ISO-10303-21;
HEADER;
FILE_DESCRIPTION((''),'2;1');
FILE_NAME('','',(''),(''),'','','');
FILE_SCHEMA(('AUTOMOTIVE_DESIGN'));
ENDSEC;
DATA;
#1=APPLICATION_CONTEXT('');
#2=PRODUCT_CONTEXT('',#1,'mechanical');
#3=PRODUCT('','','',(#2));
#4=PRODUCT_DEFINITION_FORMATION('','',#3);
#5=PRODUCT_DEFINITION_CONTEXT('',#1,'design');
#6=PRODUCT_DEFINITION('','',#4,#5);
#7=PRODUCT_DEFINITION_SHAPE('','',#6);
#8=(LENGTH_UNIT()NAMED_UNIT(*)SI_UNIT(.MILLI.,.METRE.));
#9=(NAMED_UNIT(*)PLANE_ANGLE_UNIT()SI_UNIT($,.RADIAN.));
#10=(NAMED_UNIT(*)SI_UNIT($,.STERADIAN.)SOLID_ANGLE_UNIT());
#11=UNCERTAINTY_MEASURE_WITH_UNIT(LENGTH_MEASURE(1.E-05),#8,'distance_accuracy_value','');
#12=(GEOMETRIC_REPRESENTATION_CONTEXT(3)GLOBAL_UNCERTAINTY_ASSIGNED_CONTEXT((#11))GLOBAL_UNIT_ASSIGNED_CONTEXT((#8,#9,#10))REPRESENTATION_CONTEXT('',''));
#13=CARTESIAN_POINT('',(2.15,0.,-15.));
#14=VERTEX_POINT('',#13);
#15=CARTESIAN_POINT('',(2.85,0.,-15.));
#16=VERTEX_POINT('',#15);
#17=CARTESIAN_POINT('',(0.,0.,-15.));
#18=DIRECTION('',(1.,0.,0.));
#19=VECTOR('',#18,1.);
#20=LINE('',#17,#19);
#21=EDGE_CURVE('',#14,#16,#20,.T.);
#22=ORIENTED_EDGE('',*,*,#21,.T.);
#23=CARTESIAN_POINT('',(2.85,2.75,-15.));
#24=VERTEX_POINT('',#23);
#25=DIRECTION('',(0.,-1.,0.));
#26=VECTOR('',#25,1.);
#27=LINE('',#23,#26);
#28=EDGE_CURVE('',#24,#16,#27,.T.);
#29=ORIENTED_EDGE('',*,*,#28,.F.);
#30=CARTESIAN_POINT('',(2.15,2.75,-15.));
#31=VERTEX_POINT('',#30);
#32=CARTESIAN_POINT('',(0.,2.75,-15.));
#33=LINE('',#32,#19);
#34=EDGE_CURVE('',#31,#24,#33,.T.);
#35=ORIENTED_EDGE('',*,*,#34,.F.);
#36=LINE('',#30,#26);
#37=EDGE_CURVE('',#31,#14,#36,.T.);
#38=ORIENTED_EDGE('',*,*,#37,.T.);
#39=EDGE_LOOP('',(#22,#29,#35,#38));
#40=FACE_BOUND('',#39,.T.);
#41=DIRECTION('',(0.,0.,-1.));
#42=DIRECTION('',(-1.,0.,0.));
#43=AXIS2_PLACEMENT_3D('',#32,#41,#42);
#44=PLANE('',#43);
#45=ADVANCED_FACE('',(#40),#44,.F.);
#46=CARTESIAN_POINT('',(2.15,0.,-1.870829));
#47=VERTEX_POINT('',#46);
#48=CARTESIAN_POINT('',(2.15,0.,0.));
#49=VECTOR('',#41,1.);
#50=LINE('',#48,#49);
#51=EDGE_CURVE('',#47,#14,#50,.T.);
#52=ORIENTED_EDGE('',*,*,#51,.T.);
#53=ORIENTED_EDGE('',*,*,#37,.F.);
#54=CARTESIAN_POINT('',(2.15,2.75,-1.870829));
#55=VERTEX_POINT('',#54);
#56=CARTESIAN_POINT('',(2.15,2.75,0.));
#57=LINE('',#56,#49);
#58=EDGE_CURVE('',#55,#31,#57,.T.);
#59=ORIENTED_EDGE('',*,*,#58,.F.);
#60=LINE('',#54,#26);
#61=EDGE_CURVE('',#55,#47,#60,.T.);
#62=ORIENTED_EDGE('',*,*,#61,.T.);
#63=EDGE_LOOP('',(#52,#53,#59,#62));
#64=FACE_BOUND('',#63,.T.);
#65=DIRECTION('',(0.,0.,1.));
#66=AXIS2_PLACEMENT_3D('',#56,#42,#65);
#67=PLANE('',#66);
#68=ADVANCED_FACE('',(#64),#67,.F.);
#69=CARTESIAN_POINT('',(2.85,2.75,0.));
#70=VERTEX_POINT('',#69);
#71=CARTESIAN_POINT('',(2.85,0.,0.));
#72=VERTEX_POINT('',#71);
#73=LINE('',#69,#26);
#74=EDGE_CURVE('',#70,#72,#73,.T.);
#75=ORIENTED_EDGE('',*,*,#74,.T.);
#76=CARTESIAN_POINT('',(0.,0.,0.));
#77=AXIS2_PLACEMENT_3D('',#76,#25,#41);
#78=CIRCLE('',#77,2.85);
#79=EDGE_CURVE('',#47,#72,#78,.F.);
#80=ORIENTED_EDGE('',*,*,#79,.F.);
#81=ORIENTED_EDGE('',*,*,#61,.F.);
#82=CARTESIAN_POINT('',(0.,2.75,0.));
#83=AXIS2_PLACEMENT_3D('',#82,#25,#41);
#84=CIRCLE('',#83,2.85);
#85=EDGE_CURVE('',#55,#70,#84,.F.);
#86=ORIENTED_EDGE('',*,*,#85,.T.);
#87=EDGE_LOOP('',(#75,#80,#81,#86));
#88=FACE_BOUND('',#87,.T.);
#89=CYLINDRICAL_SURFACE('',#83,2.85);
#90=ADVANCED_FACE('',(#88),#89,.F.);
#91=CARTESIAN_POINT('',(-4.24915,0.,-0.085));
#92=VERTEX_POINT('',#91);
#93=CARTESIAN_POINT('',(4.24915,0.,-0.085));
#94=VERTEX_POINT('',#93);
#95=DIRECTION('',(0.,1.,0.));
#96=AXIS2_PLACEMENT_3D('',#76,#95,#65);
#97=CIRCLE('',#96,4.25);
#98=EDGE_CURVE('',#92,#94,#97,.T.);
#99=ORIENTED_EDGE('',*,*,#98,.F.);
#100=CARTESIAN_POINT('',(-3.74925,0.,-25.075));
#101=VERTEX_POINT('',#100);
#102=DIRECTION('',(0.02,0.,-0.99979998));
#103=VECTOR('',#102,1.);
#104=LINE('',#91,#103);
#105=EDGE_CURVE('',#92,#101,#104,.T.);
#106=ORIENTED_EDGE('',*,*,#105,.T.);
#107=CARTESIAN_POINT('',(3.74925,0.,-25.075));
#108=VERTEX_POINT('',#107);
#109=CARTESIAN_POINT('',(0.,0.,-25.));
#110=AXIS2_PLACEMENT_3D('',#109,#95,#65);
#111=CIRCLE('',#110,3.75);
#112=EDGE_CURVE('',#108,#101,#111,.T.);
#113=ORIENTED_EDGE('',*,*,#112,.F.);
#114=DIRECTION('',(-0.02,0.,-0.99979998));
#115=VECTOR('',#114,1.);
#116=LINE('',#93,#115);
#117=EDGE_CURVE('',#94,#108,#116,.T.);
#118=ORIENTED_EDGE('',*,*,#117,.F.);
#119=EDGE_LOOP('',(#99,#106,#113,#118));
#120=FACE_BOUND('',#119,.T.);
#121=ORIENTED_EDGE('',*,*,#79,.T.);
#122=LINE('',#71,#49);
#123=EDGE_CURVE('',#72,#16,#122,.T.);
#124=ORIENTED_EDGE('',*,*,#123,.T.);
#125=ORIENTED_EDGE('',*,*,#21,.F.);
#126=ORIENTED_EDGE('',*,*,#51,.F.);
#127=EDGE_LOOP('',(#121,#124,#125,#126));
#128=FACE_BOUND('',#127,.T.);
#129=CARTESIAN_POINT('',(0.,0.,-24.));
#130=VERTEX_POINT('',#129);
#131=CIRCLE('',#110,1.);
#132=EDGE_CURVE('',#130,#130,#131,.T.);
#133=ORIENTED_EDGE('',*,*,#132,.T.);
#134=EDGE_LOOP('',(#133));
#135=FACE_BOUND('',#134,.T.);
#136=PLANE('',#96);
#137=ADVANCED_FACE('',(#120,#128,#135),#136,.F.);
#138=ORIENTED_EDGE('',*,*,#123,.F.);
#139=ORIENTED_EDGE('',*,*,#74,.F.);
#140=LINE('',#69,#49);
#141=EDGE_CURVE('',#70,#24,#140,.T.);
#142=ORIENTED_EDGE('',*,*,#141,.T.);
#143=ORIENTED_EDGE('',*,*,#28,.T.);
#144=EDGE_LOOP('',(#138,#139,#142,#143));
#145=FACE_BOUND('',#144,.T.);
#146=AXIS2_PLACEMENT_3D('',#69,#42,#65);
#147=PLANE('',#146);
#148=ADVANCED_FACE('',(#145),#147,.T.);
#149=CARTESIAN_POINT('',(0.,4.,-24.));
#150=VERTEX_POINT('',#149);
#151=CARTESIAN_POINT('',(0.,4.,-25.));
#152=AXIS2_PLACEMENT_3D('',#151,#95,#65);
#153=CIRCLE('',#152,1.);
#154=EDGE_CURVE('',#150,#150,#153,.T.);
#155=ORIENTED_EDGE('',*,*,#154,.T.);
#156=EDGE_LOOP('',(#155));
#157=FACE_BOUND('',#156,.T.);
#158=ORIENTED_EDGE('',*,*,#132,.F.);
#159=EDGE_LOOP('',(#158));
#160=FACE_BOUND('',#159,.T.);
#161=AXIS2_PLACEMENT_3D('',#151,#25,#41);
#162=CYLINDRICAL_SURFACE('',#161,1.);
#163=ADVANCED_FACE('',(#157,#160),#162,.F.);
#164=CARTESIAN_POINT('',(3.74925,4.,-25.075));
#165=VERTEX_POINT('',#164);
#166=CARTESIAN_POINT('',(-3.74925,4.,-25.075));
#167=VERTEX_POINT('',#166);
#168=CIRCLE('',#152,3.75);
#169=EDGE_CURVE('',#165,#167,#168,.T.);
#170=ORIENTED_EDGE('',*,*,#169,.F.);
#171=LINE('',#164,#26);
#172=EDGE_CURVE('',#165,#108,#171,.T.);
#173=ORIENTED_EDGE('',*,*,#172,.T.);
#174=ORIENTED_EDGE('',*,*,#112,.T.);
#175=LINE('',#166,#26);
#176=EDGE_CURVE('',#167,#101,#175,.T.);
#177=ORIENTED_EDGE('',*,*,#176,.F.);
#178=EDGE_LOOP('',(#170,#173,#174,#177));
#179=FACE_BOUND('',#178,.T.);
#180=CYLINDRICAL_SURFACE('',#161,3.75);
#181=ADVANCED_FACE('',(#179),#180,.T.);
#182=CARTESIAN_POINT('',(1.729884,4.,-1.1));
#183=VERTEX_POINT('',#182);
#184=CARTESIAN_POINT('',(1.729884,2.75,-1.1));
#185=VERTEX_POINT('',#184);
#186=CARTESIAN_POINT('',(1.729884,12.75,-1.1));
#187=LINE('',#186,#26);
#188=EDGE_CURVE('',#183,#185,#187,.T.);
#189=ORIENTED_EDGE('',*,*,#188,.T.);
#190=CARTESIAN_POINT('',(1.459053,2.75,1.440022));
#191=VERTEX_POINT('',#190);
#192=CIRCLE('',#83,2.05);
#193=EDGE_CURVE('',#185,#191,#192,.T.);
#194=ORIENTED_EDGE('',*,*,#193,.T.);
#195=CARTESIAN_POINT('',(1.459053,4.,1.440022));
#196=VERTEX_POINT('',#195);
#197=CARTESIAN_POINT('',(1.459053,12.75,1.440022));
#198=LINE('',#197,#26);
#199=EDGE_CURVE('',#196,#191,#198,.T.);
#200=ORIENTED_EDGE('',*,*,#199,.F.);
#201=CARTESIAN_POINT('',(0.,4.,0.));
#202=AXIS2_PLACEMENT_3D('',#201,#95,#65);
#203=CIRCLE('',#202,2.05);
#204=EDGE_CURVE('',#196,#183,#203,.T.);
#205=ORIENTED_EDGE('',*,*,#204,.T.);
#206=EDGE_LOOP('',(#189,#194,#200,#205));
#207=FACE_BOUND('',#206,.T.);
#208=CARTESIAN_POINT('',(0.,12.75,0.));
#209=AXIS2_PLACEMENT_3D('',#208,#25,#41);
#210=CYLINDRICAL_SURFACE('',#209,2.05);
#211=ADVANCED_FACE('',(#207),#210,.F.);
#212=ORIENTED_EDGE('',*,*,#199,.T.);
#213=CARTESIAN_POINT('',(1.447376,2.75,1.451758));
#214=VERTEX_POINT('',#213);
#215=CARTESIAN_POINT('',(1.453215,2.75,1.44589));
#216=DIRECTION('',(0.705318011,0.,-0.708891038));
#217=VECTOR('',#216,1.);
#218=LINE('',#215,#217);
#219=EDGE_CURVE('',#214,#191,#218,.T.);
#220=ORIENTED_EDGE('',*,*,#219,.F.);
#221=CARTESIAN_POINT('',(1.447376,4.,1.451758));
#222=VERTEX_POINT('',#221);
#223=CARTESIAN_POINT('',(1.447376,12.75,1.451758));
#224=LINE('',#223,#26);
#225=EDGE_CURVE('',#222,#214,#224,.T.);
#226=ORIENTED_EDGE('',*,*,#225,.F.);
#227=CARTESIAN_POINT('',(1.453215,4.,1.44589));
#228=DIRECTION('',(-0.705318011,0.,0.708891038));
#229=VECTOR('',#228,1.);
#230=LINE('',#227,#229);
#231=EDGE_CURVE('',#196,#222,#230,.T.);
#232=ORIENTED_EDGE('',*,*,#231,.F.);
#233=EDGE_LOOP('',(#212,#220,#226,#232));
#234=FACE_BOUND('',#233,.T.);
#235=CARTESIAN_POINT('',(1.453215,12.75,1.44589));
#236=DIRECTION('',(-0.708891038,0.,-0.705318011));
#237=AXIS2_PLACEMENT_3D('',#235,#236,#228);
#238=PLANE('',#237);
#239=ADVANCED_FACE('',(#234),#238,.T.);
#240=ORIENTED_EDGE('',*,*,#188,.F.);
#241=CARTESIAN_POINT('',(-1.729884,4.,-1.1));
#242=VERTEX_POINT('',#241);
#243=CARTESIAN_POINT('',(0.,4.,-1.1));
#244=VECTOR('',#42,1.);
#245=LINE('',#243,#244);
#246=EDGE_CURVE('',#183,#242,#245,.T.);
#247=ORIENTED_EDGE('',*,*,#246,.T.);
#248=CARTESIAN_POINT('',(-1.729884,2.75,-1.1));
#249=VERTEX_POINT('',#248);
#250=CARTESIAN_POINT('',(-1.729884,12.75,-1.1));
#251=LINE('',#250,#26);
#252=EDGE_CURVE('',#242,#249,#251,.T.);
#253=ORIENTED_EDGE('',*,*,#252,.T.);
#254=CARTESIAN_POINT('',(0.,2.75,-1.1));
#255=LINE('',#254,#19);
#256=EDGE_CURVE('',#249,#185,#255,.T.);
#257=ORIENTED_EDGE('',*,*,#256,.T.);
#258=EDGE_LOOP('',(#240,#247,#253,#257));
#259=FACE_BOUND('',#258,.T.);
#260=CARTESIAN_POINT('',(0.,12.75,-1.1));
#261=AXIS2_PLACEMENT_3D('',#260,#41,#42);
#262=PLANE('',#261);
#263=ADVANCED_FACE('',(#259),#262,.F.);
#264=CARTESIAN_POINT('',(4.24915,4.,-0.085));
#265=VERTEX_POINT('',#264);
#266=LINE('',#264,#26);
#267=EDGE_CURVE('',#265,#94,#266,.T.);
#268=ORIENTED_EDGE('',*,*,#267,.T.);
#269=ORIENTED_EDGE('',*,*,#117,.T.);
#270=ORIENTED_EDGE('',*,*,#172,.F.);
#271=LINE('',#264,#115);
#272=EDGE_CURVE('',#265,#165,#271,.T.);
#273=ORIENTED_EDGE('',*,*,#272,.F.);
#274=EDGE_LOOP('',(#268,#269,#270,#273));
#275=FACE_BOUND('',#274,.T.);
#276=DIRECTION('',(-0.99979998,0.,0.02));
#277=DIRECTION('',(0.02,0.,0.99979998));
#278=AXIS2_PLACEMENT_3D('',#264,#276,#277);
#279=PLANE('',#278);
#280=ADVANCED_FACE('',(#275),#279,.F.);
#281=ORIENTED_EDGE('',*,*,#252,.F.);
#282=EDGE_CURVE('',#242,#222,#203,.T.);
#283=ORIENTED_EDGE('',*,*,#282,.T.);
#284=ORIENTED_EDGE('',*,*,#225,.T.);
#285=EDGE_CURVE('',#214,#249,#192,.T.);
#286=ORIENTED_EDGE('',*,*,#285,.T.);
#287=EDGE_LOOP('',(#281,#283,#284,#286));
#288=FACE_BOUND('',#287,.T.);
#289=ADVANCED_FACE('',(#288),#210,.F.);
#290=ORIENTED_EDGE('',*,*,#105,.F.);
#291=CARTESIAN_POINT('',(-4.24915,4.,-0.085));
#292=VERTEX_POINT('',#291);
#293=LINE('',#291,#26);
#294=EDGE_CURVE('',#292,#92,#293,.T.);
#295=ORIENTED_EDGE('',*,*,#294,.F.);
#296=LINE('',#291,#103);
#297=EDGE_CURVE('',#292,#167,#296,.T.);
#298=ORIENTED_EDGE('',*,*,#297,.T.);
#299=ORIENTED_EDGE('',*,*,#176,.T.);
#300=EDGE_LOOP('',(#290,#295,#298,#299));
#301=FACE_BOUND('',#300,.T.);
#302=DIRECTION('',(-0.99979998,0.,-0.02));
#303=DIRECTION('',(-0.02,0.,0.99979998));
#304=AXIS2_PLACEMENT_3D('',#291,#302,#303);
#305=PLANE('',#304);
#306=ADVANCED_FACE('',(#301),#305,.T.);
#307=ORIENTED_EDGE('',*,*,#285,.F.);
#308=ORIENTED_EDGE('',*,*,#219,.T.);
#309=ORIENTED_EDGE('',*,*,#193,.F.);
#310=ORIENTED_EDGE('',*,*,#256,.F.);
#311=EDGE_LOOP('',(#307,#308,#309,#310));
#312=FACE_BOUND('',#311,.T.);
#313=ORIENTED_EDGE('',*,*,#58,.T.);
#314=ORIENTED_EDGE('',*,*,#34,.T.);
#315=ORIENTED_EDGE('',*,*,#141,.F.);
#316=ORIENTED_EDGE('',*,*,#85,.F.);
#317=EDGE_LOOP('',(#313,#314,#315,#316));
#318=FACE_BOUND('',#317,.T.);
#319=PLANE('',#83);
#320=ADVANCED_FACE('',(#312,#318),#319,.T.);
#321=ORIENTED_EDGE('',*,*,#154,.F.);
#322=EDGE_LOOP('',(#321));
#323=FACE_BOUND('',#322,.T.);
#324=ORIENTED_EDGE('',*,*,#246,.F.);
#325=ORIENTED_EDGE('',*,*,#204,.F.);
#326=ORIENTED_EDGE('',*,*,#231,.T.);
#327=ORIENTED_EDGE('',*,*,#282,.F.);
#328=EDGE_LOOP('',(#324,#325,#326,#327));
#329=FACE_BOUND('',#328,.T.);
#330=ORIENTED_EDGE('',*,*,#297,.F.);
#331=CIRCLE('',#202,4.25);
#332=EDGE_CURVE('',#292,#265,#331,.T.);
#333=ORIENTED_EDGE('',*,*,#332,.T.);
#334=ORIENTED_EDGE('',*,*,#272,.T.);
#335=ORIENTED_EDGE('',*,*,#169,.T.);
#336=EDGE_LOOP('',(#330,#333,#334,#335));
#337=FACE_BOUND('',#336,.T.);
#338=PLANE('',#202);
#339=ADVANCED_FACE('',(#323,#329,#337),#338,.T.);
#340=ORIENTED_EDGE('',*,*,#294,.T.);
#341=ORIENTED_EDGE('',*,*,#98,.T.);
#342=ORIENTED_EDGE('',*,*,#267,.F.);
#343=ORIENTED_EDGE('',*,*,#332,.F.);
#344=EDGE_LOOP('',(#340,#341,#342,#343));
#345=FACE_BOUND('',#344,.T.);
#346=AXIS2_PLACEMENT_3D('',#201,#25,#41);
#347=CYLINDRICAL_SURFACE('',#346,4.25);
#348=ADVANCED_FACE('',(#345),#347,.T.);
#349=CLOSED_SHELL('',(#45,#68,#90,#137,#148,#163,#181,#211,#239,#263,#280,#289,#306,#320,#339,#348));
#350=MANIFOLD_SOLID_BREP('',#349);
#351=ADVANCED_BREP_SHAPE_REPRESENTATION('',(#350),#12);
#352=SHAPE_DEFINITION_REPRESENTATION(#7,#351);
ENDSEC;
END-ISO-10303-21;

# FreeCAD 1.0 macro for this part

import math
import FreeCAD as App
import Part
import Sketcher

doc = App.newDocument("Part")
body = doc.addObject("PartDesign::Body", "Body")

# Sketch on XZ plane
sketch1 = body.newObject("Sketcher::SketchObject", "Sketch")
sketch1.AttachmentSupport = (doc.getObject("XZ_Plane"), [""])
sketch1.MapMode = "FlatFace"
sketch1.addGeometry([
    Part.LineSegment(App.Vector(4.24915, -0.085, 0), App.Vector(3.74925, -25.075, 0)),  # 0
    Part.ArcOfCircle(Part.Circle(App.Vector(0, -25, 0), App.Vector(0, 0, 1), 3.75), math.radians(-178.854008), math.radians(-1.145992)),  # 1
    Part.LineSegment(App.Vector(-3.74925, -25.075, 0), App.Vector(-4.24915, -0.085, 0)),  # 2
    Part.ArcOfCircle(Part.Circle(App.Vector(0, 0, 0), App.Vector(0, 0, 1), 4.25), math.radians(-1.145992), math.radians(181.145992)),  # 3
    Part.Circle(App.Vector(0, -25, 0), App.Vector(0, 0, 1), 1),  # 4
], False)
sketch1.addConstraint([
    Sketcher.Constraint("Tangent", 0, 2, 1, 2),
    Sketcher.Constraint("Tangent", 1, 1, 2, 1),
    Sketcher.Constraint("Tangent", 2, 2, 3, 2),
    Sketcher.Constraint("Tangent", 3, 1, 0, 1),
    Sketcher.Constraint("Coincident", 3, 3, -1, 1),
    Sketcher.Constraint("Coincident", 4, 3, 1, 3),
    Sketcher.Constraint("PointOnObject", 1, 3, -2),
    Sketcher.Constraint("Diameter", 4, 2.0),
    Sketcher.Constraint("Radius", 1, 3.75),
    Sketcher.Constraint("Radius", 3, 4.25),
    Sketcher.Constraint("DistanceY", 1, 3, -1, 1, 25.0),
])
pad1 = body.newObject("PartDesign::Pad", "Pad")
pad1.Profile = sketch1
pad1.Length = 4
pad1.Reversed = True

# Sketch on XZ plane
sketch2 = body.newObject("Sketcher::SketchObject", "Sketch001")
sketch2.AttachmentSupport = (doc.getObject("XZ_Plane"), [""])
sketch2.MapMode = "FlatFace"
sketch2.addGeometry([
    Part.LineSegment(App.Vector(2.15, -15, 0), App.Vector(2.15, -1.870829, 0)),
    Part.ArcOfCircle(Part.Circle(App.Vector(0, 0, 0), App.Vector(0, 0, 1), 2.85), math.radians(0), math.radians(318.971746)),
    Part.LineSegment(App.Vector(2.85, 0, 0), App.Vector(2.85, -15, 0)),
    Part.LineSegment(App.Vector(2.85, -15, 0), App.Vector(2.15, -15, 0)),
], False)
sketch2.addConstraint([
    Sketcher.Constraint("Coincident", 0, 2, 1, 2),
    Sketcher.Constraint("Tangent", 1, 1, 2, 1),
    Sketcher.Constraint("Coincident", 2, 2, 3, 1),
    Sketcher.Constraint("Coincident", 3, 2, 0, 1),
    Sketcher.Constraint("Vertical", 0),
    Sketcher.Constraint("Vertical", 2),
    Sketcher.Constraint("Horizontal", 3),
    Sketcher.Constraint("Coincident", 1, 3, -1, 1),
    Sketcher.Constraint("DistanceY", 2, 2, 2, 1, 15.0),
    Sketcher.Constraint("Radius", 1, 2.85),
    Sketcher.Constraint("DistanceX", 3, 2, 3, 1, 0.7),
])
pocket1 = body.newObject("PartDesign::Pocket", "Pocket")
pocket1.Profile = sketch2
pocket1.Length = 2.75

# Sketch on XZ plane
sketch3 = body.newObject("Sketcher::SketchObject", "Sketch002")
sketch3.AttachmentSupport = (doc.getObject("XZ_Plane"), [""])
sketch3.MapMode = "FlatFace"
sketch3.AttachmentOffset = App.Placement(App.Vector(0, 0, -2.75), App.Rotation())
sketch3.addGeometry([
    Part.LineSegment(App.Vector(1.459053, 1.440022, 0), App.Vector(1.447376, 1.451758, 0)),  # 0
    Part.ArcOfCircle(Part.Circle(App.Vector(0, 0, 0), App.Vector(0, 0, 1), 2.05), math.radians(45.086599), math.radians(180)),  # 1
    Part.ArcOfCircle(Part.Circle(App.Vector(0, 0, 0), App.Vector(0, 0, 1), 2.05), math.radians(180), math.radians(212.451491)),  # 2
    Part.LineSegment(App.Vector(-1.729884, -1.1, 0), App.Vector(1.729884, -1.1, 0)),  # 3
    Part.ArcOfCircle(Part.Circle(App.Vector(0, 0, 0), App.Vector(0, 0, 1), 2.05), math.radians(-32.451491), math.radians(0)),  # 4
    Part.ArcOfCircle(Part.Circle(App.Vector(0, 0, 0), App.Vector(0, 0, 1), 2.05), math.radians(0), math.radians(44.623884)),  # 5
], False)
sketch3.addConstraint([
    Sketcher.Constraint("Coincident", 0, 2, 1, 1),
    Sketcher.Constraint("Tangent", 1, 2, 2, 1),
    Sketcher.Constraint("Coincident", 2, 2, 3, 1),
    Sketcher.Constraint("Coincident", 3, 2, 4, 1),
    Sketcher.Constraint("Tangent", 4, 2, 5, 1),
    Sketcher.Constraint("Coincident", 5, 2, 0, 1),
    Sketcher.Constraint("Horizontal", 3),
    Sketcher.Constraint("Coincident", 1, 3, -1, 1),
    Sketcher.Constraint("Coincident", 4, 3, -1, 1),
    Sketcher.Constraint("Equal", 1, 2),
    Sketcher.Constraint("Equal", 2, 4),
    Sketcher.Constraint("Equal", 4, 5),
    Sketcher.Constraint("PointOnObject", 1, 2, -1),
    Sketcher.Constraint("PointOnObject", 4, 2, -1),
    Sketcher.Constraint("Radius", 1, 2.05),
    Sketcher.Constraint("DistanceY", 2, 2, -1, 1, 1.1),
    Sketcher.Constraint("DistanceY", -1, 1, 0, 2, 1.451758),
    Sketcher.Constraint("Distance", 0, 0.016556),
])
pocket2 = body.newObject("PartDesign::Pocket", "Pocket001")
pocket2.Profile = sketch3
pocket2.Length = 10

doc.recompute()
